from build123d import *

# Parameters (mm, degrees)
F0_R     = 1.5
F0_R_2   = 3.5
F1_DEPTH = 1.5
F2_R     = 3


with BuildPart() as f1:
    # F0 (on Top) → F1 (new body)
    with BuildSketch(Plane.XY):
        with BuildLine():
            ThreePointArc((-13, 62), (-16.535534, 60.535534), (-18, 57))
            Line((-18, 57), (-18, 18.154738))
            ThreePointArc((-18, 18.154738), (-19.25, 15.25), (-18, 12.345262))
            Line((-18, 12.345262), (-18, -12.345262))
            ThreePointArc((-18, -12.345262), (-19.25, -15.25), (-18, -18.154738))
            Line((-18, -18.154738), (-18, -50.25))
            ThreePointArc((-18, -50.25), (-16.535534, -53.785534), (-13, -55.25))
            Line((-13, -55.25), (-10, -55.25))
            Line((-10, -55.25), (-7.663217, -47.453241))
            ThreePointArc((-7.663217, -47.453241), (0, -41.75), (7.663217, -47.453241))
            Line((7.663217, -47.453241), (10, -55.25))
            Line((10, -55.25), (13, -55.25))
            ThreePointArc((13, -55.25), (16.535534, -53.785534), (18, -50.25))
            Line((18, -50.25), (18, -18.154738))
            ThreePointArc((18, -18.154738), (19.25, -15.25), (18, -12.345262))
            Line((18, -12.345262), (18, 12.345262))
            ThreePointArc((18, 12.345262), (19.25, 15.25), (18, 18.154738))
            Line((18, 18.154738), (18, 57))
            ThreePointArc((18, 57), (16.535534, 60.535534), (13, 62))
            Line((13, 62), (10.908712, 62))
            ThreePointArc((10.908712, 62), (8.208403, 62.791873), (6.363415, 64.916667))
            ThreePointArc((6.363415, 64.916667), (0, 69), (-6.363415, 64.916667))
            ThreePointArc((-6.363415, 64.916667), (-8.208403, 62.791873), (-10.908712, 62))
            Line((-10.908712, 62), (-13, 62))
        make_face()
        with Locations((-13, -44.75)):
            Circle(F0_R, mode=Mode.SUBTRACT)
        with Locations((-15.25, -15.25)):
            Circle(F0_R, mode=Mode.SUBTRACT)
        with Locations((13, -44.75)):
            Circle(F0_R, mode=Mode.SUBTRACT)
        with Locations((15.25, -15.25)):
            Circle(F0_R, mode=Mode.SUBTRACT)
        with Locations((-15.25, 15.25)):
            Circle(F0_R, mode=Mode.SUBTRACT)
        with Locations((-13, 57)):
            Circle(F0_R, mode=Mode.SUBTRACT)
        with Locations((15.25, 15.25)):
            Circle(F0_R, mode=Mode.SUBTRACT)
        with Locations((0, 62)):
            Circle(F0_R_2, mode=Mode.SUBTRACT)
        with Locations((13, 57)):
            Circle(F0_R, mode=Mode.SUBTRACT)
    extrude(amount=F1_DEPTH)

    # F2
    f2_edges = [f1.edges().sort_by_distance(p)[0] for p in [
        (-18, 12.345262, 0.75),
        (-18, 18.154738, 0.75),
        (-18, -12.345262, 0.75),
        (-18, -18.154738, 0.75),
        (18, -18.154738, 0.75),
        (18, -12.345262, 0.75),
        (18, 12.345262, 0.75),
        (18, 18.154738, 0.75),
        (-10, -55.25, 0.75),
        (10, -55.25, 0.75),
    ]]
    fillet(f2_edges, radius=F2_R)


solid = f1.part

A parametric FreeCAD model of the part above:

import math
import FreeCAD as App
import Part
import Sketcher
from FreeCAD import Vector
Q = App.Units.Quantity


def edges_at(feature, points):
    """Names of the edges that pass closest to the given points."""
    edges = feature.Shape.Edges
    near = lambda p: min(range(len(edges)), key=lambda i: edges[i].distToShape(Part.Vertex(*p))[0])
    return sorted({f"Edge{near(p) + 1}" for p in points})

doc = App.newDocument("Part")
body = doc.addObject("PartDesign::Body", "Body")

sketch1 = body.newObject("Sketcher::SketchObject", "Sketch")
sketch1.AttachmentSupport = (doc.getObject("XY_Plane"), [""])
sketch1.MapMode = "FlatFace"
sketch1.addGeometry(Part.ArcOfCircle(Part.Circle(Vector(-13, 57, 0), Vector(0, 0, 1), 5), math.radians(90), math.radians(180)), False)
sketch1.addGeometry(Part.LineSegment(Vector(-18, 57, 0), Vector(-18, 18.2, 0)), False)
sketch1.addGeometry(Part.ArcOfCircle(Part.Circle(Vector(-15.2, 15.2, 0), Vector(0, 0, 1), 4), math.radians(133), math.radians(227)), False)
sketch1.addGeometry(Part.LineSegment(Vector(-18, 12.3, 0), Vector(-18, -12.3, 0)), False)
sketch1.addGeometry(Part.ArcOfCircle(Part.Circle(Vector(-15.2, -15.2, 0), Vector(0, 0, 1), 4), math.radians(133), math.radians(227)), False)
sketch1.addGeometry(Part.LineSegment(Vector(-18, -18.2, 0), Vector(-18, -50.2, 0)), False)
sketch1.addGeometry(Part.ArcOfCircle(Part.Circle(Vector(-13, -50.3, 0), Vector(0, 0, 1), 5), math.radians(180), math.radians(270)), False)
sketch1.addGeometry(Part.LineSegment(Vector(-13, -55.2, 0), Vector(-10, -55.2, 0)), False)
sketch1.addGeometry(Part.LineSegment(Vector(-10, -55.2, 0), Vector(-7.7, -47.5, 0)), False)
sketch1.addGeometry(Part.ArcOfCircle(Part.Circle(Vector(0, -49.7, 0), Vector(0, 0, 1), 8), math.radians(17), math.radians(163)), False)
sketch1.addGeometry(Part.LineSegment(Vector(7.7, -47.5, 0), Vector(10, -55.2, 0)), False)
sketch1.addGeometry(Part.LineSegment(Vector(10, -55.2, 0), Vector(13, -55.2, 0)), False)
sketch1.addGeometry(Part.ArcOfCircle(Part.Circle(Vector(13, -50.3, 0), Vector(0, 0, 1), 5), math.radians(-90), math.radians(0)), False)
sketch1.addGeometry(Part.LineSegment(Vector(18, -50.2, 0), Vector(18, -18.2, 0)), False)
sketch1.addGeometry(Part.ArcOfCircle(Part.Circle(Vector(15.2, -15.2, 0), Vector(0, 0, 1), 4), math.radians(-47), math.radians(47)), False)
sketch1.addGeometry(Part.LineSegment(Vector(18, -12.3, 0), Vector(18, 12.3, 0)), False)
sketch1.addGeometry(Part.ArcOfCircle(Part.Circle(Vector(15.2, 15.2, 0), Vector(0, 0, 1), 4), math.radians(-47), math.radians(47)), False)
sketch1.addGeometry(Part.LineSegment(Vector(18, 18.2, 0), Vector(18, 57, 0)), False)
sketch1.addGeometry(Part.ArcOfCircle(Part.Circle(Vector(13, 57, 0), Vector(0, 0, 1), 5), math.radians(0), math.radians(90)), False)
sketch1.addGeometry(Part.LineSegment(Vector(13, 62, 0), Vector(10.9, 62, 0)), False)
sketch1.addGeometry(Part.ArcOfCircle(Part.Circle(Vector(10.9, 67, 0), Vector(0, 0, 1), 5), math.radians(-155), math.radians(-90)), False)
sketch1.addGeometry(Part.ArcOfCircle(Part.Circle(Vector(0, 62, 0), Vector(0, 0, 1), 7), math.radians(25), math.radians(155)), False)
sketch1.addGeometry(Part.ArcOfCircle(Part.Circle(Vector(-10.9, 67, 0), Vector(0, 0, 1), 5), math.radians(-90), math.radians(-25)), False)
sketch1.addGeometry(Part.LineSegment(Vector(-10.9, 62, 0), Vector(-13, 62, 0)), False)
sketch1.addGeometry(Part.Circle(Vector(-13, -44.8, 0), Vector(0, 0, 1), 1.5), False)
sketch1.addGeometry(Part.Circle(Vector(-15.2, -15.2, 0), Vector(0, 0, 1), 1.5), False)
sketch1.addGeometry(Part.Circle(Vector(13, -44.8, 0), Vector(0, 0, 1), 1.5), False)
sketch1.addGeometry(Part.Circle(Vector(15.2, -15.2, 0), Vector(0, 0, 1), 1.5), False)
sketch1.addGeometry(Part.Circle(Vector(-15.2, 15.2, 0), Vector(0, 0, 1), 1.5), False)
sketch1.addGeometry(Part.Circle(Vector(-13, 57, 0), Vector(0, 0, 1), 1.5), False)
sketch1.addGeometry(Part.Circle(Vector(15.2, 15.2, 0), Vector(0, 0, 1), 1.5), False)
sketch1.addGeometry(Part.Circle(Vector(0, 62, 0), Vector(0, 0, 1), 3.5), False)
sketch1.addGeometry(Part.Circle(Vector(13, 57, 0), Vector(0, 0, 1), 1.5), False)
sketch1.addConstraint(Sketcher.Constraint("Tangent", 0, 2, 1, 1))
sketch1.addConstraint(Sketcher.Constraint("Coincident", 1, 2, 2, 1))
sketch1.addConstraint(Sketcher.Constraint("Coincident", 2, 2, 3, 1))
sketch1.addConstraint(Sketcher.Constraint("Coincident", 3, 2, 4, 1))
sketch1.addConstraint(Sketcher.Constraint("Coincident", 4, 2, 5, 1))
sketch1.addConstraint(Sketcher.Constraint("Tangent", 5, 2, 6, 1))
sketch1.addConstraint(Sketcher.Constraint("Tangent", 6, 2, 7, 1))
sketch1.addConstraint(Sketcher.Constraint("Coincident", 7, 2, 8, 1))
sketch1.addConstraint(Sketcher.Constraint("Tangent", 8, 2, 9, 2))
sketch1.addConstraint(Sketcher.Constraint("Tangent", 9, 1, 10, 1))
sketch1.addConstraint(Sketcher.Constraint("Coincident", 10, 2, 11, 1))
sketch1.addConstraint(Sketcher.Constraint("Tangent", 11, 2, 12, 1))
sketch1.addConstraint(Sketcher.Constraint("Tangent", 12, 2, 13, 1))
sketch1.addConstraint(Sketcher.Constraint("Coincident", 13, 2, 14, 1))
sketch1.addConstraint(Sketcher.Constraint("Coincident", 14, 2, 15, 1))
sketch1.addConstraint(Sketcher.Constraint("Coincident", 15, 2, 16, 1))
sketch1.addConstraint(Sketcher.Constraint("Coincident", 16, 2, 17, 1))
sketch1.addConstraint(Sketcher.Constraint("Tangent", 17, 2, 18, 1))
sketch1.addConstraint(Sketcher.Constraint("Tangent", 18, 2, 19, 1))
sketch1.addConstraint(Sketcher.Constraint("Tangent", 19, 2, 20, 2))
sketch1.addConstraint(Sketcher.Constraint("Tangent", 20, 1, 21, 1))
sketch1.addConstraint(Sketcher.Constraint("Tangent", 21, 2, 22, 2))
sketch1.addConstraint(Sketcher.Constraint("Tangent", 22, 1, 23, 1))
sketch1.addConstraint(Sketcher.Constraint("Tangent", 23, 2, 0, 1))
sketch1.addConstraint(Sketcher.Constraint("Vertical", 1))
sketch1.addConstraint(Sketcher.Constraint("Vertical", 3))
sketch1.addConstraint(Sketcher.Constraint("Vertical", 5))
sketch1.addConstraint(Sketcher.Constraint("Horizontal", 7))
sketch1.addConstraint(Sketcher.Constraint("Horizontal", 11))
sketch1.addConstraint(Sketcher.Constraint("Vertical", 13))
sketch1.addConstraint(Sketcher.Constraint("Vertical", 15))
sketch1.addConstraint(Sketcher.Constraint("Vertical", 17))
sketch1.addConstraint(Sketcher.Constraint("Horizontal", 19))
sketch1.addConstraint(Sketcher.Constraint("Horizontal", 23))
sketch1.addConstraint(Sketcher.Constraint("Coincident", 25, 3, 4, 3))
sketch1.addConstraint(Sketcher.Constraint("Coincident", 27, 3, 14, 3))
sketch1.addConstraint(Sketcher.Constraint("Coincident", 28, 3, 2, 3))
sketch1.addConstraint(Sketcher.Constraint("Coincident", 29, 3, 0, 3))
sketch1.addConstraint(Sketcher.Constraint("Coincident", 30, 3, 16, 3))
sketch1.addConstraint(Sketcher.Constraint("Coincident", 31, 3, 21, 3))
sketch1.addConstraint(Sketcher.Constraint("Coincident", 32, 3, 18, 3))
sketch1.addConstraint(Sketcher.Constraint("Equal", 2, 4))
sketch1.addConstraint(Sketcher.Constraint("Equal", 0, 6))
sketch1.addConstraint(Sketcher.Constraint("Equal", 6, 12))
sketch1.addConstraint(Sketcher.Constraint("Equal", 4, 14))
sketch1.addConstraint(Sketcher.Constraint("Equal", 14, 16))
sketch1.addConstraint(Sketcher.Constraint("Equal", 12, 18))
sketch1.addConstraint(Sketcher.Constraint("Equal", 18, 20))
sketch1.addConstraint(Sketcher.Constraint("Equal", 20, 22))
sketch1.addConstraint(Sketcher.Constraint("Equal", 24, 25))
sketch1.addConstraint(Sketcher.Constraint("Equal", 25, 26))
sketch1.addConstraint(Sketcher.Constraint("Equal", 26, 27))
sketch1.addConstraint(Sketcher.Constraint("Equal", 27, 28))
sketch1.addConstraint(Sketcher.Constraint("Equal", 28, 29))
sketch1.addConstraint(Sketcher.Constraint("Equal", 29, 30))
sketch1.addConstraint(Sketcher.Constraint("Equal", 30, 32))
sketch1.addConstraint(Sketcher.Constraint("Symmetric", 2, 3, 14, 3, -1, 1))
sketch1.addConstraint(Sketcher.Constraint("Symmetric", 4, 3, 16, 3, -1, 1))
sketch1.addConstraint(Sketcher.Constraint("Symmetric", 6, 3, 12, 3, -2))
sketch1.addConstraint(Sketcher.Constraint("Symmetric", 4, 3, 14, 3, -2))
sketch1.addConstraint(Sketcher.Constraint("Symmetric", 0, 3, 18, 3, -2))
sketch1.addConstraint(Sketcher.Constraint("Symmetric", 24, 3, 26, 3, -2))
sketch1.addConstraint(Sketcher.Constraint("Symmetric", 8, 2, 9, 1, -2))
sketch1.addConstraint(Sketcher.Constraint("PointOnObject", 21, 3, -2))
sketch1.addConstraint(Sketcher.Constraint("Horizontal", 3, 2, 14, 2))
sketch1.addConstraint(Sketcher.Constraint("Horizontal", 31, 3, 18, 2))
sketch1.addConstraint(Sketcher.Constraint("Vertical", 0, 3, 6, 3))
sketch1.addConstraint(Sketcher.Constraint("Vertical", 6, 3, 24, 3))
sketch1.addConstraint(Sketcher.Constraint("Vertical", 1, 2, 2, 2))
sketch1.addConstraint(Sketcher.Constraint("Diameter", 24, Q("3 mm")))
sketch1.addConstraint(Sketcher.Constraint("Diameter", 31, Q("7 mm")))
sketch1.addConstraint(Sketcher.Constraint("Radius", 0, Q("5 mm")))
sketch1.addConstraint(Sketcher.Constraint("Radius", 2, Q("4.000001 mm")))
sketch1.addConstraint(Sketcher.Constraint("Radius", 9, Q("8 mm")))
sketch1.addConstraint(Sketcher.Constraint("Radius", 21, Q("7 mm")))
sketch1.addConstraint(Sketcher.Constraint("DistanceX", 7, 1, 7, 2, Q("3 mm")))
sketch1.addConstraint(Sketcher.Constraint("DistanceX", 0, 3, -1, 1, Q("13 mm")))
sketch1.addConstraint(Sketcher.Constraint("DistanceY", -1, 1, 0, 3, Q("57 mm")))
sketch1.addConstraint(Sketcher.Constraint("DistanceY", 6, 3, 4, 3, Q("35 mm")))
sketch1.addConstraint(Sketcher.Constraint("DistanceY", 9, 3, 2, 3, Q("65 mm")))
sketch1.addConstraint(Sketcher.Constraint("DistanceY", 9, 3, 24, 3, Q("5 mm")))
sketch1.addConstraint(Sketcher.Constraint("DistanceY", 4, 3, 2, 3, Q("30.5 mm")))
sketch1.addConstraint(Sketcher.Constraint("DistanceX", 25, 3, 14, 3, Q("30.499999 mm")))
pad1 = body.newObject("PartDesign::Pad", "Pad")
pad1.Profile = sketch1
pad1.Length = 1.5
doc.recompute()

fillet = body.newObject("PartDesign::Fillet", "Fillet")
fillet.Base = (pad1, edges_at(pad1, [
    (-18, 12.345, 0.75),
    (-18, 18.155, 0.75),
    (-18, -12.345, 0.75),
    (-18, -18.155, 0.75),
    (18, -18.155, 0.75),
    (18, -12.345, 0.75),
    (18, 12.345, 0.75),
    (18, 18.155, 0.75),
    (-10, -55.25, 0.75),
    (10, -55.25, 0.75),
]))
fillet.Radius = 3

doc.recompute()
